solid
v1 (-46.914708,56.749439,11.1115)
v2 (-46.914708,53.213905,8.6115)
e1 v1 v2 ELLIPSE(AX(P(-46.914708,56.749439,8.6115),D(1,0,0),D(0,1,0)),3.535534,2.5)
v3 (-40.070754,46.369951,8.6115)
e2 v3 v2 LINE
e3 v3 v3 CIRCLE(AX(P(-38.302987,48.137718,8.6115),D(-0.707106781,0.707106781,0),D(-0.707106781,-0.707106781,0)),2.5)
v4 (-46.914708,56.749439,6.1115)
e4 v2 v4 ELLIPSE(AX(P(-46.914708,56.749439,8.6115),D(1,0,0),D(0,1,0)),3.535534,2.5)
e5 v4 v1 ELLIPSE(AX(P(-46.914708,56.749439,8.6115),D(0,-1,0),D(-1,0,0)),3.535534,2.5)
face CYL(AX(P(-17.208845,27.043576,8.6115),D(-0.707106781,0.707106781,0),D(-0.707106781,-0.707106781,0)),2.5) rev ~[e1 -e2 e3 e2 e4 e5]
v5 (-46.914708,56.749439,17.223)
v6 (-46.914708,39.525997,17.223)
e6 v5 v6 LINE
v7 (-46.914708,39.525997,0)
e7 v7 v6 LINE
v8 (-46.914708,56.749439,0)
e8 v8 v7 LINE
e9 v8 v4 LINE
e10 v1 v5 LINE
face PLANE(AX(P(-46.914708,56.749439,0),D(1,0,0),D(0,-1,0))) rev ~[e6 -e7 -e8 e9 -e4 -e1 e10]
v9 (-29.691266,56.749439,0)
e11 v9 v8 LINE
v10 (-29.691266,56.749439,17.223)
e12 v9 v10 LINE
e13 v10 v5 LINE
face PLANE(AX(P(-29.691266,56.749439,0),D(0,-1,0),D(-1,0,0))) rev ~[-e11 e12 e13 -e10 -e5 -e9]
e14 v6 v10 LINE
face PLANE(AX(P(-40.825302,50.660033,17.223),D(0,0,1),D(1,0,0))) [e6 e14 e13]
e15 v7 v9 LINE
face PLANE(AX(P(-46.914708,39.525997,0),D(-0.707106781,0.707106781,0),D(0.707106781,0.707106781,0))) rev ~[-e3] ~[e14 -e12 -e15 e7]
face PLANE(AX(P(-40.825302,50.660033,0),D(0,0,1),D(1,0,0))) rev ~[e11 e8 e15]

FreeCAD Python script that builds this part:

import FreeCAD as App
import Part
import Sketcher


def add_polygon(sketch, points):
    """Adds a closed chain of lines whose ends are joined by coincident constraints."""
    first, n = sketch.GeometryCount, len(points)
    for a, b in zip(points, points[1:] + points[:1]):
        sketch.addGeometry(Part.LineSegment(App.Vector(*a, 0), App.Vector(*b, 0)), False)
    for i in range(n):
        sketch.addConstraint(Sketcher.Constraint("Coincident", first + i, 2, first + (i + 1) % n, 1))

doc = App.newDocument("Part")
params = doc.addObject("Spreadsheet::Sheet", "Params")
for row, (alias, value) in enumerate([
    ("pad1_length", "17.223 mm"),
    ("sketch2_diameter", "5 mm"),
    ("hole_diameter", "5 mm"),
], start=1):
    params.set(f"A{row}", alias)
    params.set(f"B{row}", "=" + value)
    params.setAlias(f"B{row}", alias)

body = doc.addObject("PartDesign::Body", "Body")

# Sketch on XY plane
sketch1 = body.newObject("Sketcher::SketchObject", "Sketch")
sketch1.AttachmentSupport = (doc.getObject("XY_Plane"), [""])
sketch1.MapMode = "FlatFace"
add_polygon(sketch1, [(-46.914708, 39.525997), (-29.691266, 56.749439), (-46.914708, 56.749439)])  # lines 0-2
sketch1.addConstraint([
    Sketcher.Constraint("Horizontal", 1),
    Sketcher.Constraint("Vertical", 2),
    Sketcher.Constraint("Equal", 1, 2),
    Sketcher.Constraint("DistanceX", 1, 2, 1, 1, 17.223442),
    Sketcher.Constraint("DistanceY", -1, 1, 0, 2, 56.749439),
    Sketcher.Constraint("DistanceX", 0, 2, -1, 1, 29.691266),
])
pad1 = body.newObject("PartDesign::Pad", "Pad")
pad1.Profile = sketch1
pad1.setExpression("Length", "Params.pad1_length")

# Sketch on an angled plane
sketch2 = body.newObject("Sketcher::SketchObject", "Sketch001")
sketch2.Placement = App.Placement(App.Vector(-43.220352, 43.220352, 0), App.Rotation(App.Vector(0.707106781, 0.707106781, 0), App.Vector(0, 0, 0.999999999), App.Vector(0.707106781, -0.707106781, 0), "ZXY"))
sketch2.addGeometry(Part.Circle(App.Vector(6.954205, 8.6115, 0), App.Vector(0, 0, 1), 2.5), False)
sketch2.addConstraint([
    Sketcher.Constraint("Diameter", 0, 5.0),
    Sketcher.Constraint("DistanceY", -1, 1, 0, 3, 8.6115),
    Sketcher.Constraint("DistanceX", -1, 1, 0, 3, 6.954205),
])
sketch2.setExpression("Constraints[0]", "Params.sketch2_diameter")
doc.recompute()
hole = body.newObject("PartDesign::Hole", "Hole")
hole.Profile = sketch2
hole.ThreadType = "None"
hole.setExpression("Diameter", "Params.hole_diameter")
hole.DepthType = "ThroughAll"

doc.recompute()
